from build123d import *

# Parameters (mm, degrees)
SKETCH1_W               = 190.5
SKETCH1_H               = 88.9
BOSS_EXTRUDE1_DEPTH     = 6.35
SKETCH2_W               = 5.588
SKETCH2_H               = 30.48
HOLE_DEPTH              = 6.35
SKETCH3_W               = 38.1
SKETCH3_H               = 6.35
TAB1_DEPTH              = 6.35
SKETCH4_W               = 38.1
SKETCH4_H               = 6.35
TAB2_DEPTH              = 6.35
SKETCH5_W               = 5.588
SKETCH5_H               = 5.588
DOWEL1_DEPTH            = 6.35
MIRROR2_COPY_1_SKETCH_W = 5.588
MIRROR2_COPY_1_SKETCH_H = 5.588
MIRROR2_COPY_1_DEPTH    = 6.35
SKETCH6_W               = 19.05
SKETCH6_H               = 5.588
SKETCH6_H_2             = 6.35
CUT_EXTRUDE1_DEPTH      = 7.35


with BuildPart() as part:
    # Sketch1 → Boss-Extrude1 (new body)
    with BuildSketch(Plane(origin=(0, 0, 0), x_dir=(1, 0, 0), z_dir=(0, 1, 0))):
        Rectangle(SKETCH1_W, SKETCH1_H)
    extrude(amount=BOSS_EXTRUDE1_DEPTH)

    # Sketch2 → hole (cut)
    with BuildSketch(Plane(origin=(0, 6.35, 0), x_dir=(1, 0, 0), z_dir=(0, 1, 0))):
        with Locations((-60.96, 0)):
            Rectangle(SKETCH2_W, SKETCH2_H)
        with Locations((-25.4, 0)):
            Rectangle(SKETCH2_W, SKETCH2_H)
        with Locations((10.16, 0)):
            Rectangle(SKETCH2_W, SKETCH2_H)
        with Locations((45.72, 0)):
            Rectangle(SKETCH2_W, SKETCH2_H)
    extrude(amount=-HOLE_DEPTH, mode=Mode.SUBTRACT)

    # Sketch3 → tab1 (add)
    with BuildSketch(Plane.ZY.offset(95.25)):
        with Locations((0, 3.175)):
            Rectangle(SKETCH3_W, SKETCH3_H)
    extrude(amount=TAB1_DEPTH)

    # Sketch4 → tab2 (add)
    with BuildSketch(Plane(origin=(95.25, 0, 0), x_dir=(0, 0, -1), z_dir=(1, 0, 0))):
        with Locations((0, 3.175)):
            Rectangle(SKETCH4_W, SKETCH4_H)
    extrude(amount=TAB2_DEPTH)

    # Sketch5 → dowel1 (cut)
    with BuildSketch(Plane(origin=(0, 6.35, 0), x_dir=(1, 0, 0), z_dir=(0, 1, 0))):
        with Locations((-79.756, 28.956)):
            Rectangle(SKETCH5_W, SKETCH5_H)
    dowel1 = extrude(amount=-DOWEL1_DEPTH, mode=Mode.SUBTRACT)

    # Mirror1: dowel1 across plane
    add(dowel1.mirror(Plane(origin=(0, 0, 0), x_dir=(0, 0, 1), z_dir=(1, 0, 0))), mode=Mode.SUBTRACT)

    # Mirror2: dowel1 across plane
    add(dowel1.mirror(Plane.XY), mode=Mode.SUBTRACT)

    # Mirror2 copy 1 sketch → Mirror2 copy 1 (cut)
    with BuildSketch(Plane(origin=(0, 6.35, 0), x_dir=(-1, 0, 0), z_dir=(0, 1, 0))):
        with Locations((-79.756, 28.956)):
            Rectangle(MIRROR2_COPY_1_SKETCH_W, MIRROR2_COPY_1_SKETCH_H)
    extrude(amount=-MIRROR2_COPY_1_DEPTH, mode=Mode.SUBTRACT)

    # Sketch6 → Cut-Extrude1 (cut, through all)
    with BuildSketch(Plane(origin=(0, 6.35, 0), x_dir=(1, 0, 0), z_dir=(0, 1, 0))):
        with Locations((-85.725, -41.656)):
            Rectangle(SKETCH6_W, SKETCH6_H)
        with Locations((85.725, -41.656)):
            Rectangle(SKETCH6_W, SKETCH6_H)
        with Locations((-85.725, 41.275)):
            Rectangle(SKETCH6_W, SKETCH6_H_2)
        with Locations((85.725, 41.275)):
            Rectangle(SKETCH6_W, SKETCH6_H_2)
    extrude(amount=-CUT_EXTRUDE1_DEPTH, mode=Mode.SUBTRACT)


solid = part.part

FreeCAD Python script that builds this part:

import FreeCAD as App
import Part
import Sketcher
Q = App.Units.Quantity


def add_polygon(sketch, points):
    """Adds a closed chain of lines whose ends are joined by coincident constraints."""
    first, n = sketch.GeometryCount, len(points)
    for a, b in zip(points, points[1:] + points[:1]):
        sketch.addGeometry(Part.LineSegment(App.Vector(*a, 0), App.Vector(*b, 0)), False)
    for i in range(n):
        sketch.addConstraint(Sketcher.Constraint("Coincident", first + i, 2, first + (i + 1) % n, 1))

doc = App.newDocument("Part")
body = doc.addObject("PartDesign::Body", "Body")

# Sketch on XZ plane
sketch1 = doc.addObject("Sketcher::SketchObject", "Sketch")
body.addObject(sketch1)
sketch1.AttachmentSupport = (doc.XZ_Plane, [""])
sketch1.MapMode = "FlatFace"
add_polygon(sketch1, [(-95, -44), (-95, 44), (95, 44), (95, -44)])  # lines 0-3
sketch1.addConstraint(Sketcher.Constraint("Vertical", 0))
sketch1.addConstraint(Sketcher.Constraint("Horizontal", 1))
sketch1.addConstraint(Sketcher.Constraint("Vertical", 2))
sketch1.addConstraint(Sketcher.Constraint("Horizontal", 3))
sketch1.addConstraint(Sketcher.Constraint("Symmetric", 0, 2, 2, 2, -1, 1))
sketch1.addConstraint(Sketcher.Constraint("DistanceX", 1, 1, 1, 2, Q("7.5 in")))
sketch1.addConstraint(Sketcher.Constraint("DistanceY", 0, 1, 0, 2, Q("3.5 in")))
pad1 = doc.addObject("PartDesign::Pad", "Pad")
body.addObject(pad1)
pad1.Profile = sketch1
pad1.Length = Q("0.25 in")
pad1.Reversed = True

# Sketch on XZ plane
sketch2 = doc.addObject("Sketcher::SketchObject", "Sketch001")
body.addObject(sketch2)
sketch2.AttachmentSupport = (doc.XZ_Plane, [""])
sketch2.MapMode = "FlatFace"
sketch2.AttachmentOffset = App.Placement(App.Vector(0, 0, -0.25 * 25.4), App.Rotation())
add_polygon(sketch2, [(-64, -15), (-64, 15), (-58, 15), (-58, -15)])  # lines 0-3
add_polygon(sketch2, [(-28, -15), (-28, 15), (-23, 15), (-23, -15)])  # lines 4-7
add_polygon(sketch2, [(7, -15), (7, 15), (13, 15), (13, -15)])  # lines 8-11
add_polygon(sketch2, [(43, -15), (43, 15), (49, 15), (49, -15)])  # lines 12-15
sketch2.addConstraint(Sketcher.Constraint("Vertical", 0))
sketch2.addConstraint(Sketcher.Constraint("Horizontal", 1))
sketch2.addConstraint(Sketcher.Constraint("Vertical", 2))
sketch2.addConstraint(Sketcher.Constraint("Horizontal", 3))
sketch2.addConstraint(Sketcher.Constraint("Vertical", 4))
sketch2.addConstraint(Sketcher.Constraint("Horizontal", 5))
sketch2.addConstraint(Sketcher.Constraint("Vertical", 6))
sketch2.addConstraint(Sketcher.Constraint("Horizontal", 7))
sketch2.addConstraint(Sketcher.Constraint("Vertical", 8))
sketch2.addConstraint(Sketcher.Constraint("Horizontal", 9))
sketch2.addConstraint(Sketcher.Constraint("Vertical", 10))
sketch2.addConstraint(Sketcher.Constraint("Horizontal", 11))
sketch2.addConstraint(Sketcher.Constraint("Vertical", 12))
sketch2.addConstraint(Sketcher.Constraint("Horizontal", 13))
sketch2.addConstraint(Sketcher.Constraint("Vertical", 14))
sketch2.addConstraint(Sketcher.Constraint("Horizontal", 15))
sketch2.addConstraint(Sketcher.Constraint("Horizontal", 1, 2, 4, 2))
sketch2.addConstraint(Sketcher.Constraint("Horizontal", 3, 2, 6, 2))
sketch2.addConstraint(Sketcher.Constraint("Horizontal", 5, 2, 8, 2))
sketch2.addConstraint(Sketcher.Constraint("Horizontal", 7, 2, 10, 2))
sketch2.addConstraint(Sketcher.Constraint("Horizontal", 9, 2, 12, 2))
sketch2.addConstraint(Sketcher.Constraint("Horizontal", 11, 2, 14, 2))
sketch2.addConstraint(Sketcher.Constraint("Equal", 3, 5))
sketch2.addConstraint(Sketcher.Constraint("Equal", 7, 9))
sketch2.addConstraint(Sketcher.Constraint("Equal", 11, 13))
sketch2.addConstraint(Sketcher.Constraint("DistanceY", 0, 1, 0, 2, Q("1.2 in")))
sketch2.addConstraint(Sketcher.Constraint("DistanceX", 1, 1, 1, 2, Q("0.22 in")))
sketch2.addConstraint(Sketcher.Constraint("DistanceY", -1, 1, 0, 2, Q("0.6 in")))
sketch2.addConstraint(Sketcher.Constraint("DistanceX", 0, 2, 4, 2, Q("1.4 in")))
sketch2.addConstraint(Sketcher.Constraint("DistanceX", 4, 2, 8, 2, Q("1.4 in")))
sketch2.addConstraint(Sketcher.Constraint("DistanceX", 8, 2, 12, 2, Q("1.4 in")))
sketch2.addConstraint(Sketcher.Constraint("DistanceX", 0, 2, -1, 1, Q("2.51 in")))
pocket1 = doc.addObject("PartDesign::Pocket", "Pocket")
body.addObject(pocket1)
pocket1.Profile = sketch2
pocket1.Length = Q("0.25 in")
pocket1.Reversed = True

# Sketch on YZ plane
sketch3 = doc.addObject("Sketcher::SketchObject", "Sketch002")
body.addObject(sketch3)
sketch3.AttachmentSupport = (doc.YZ_Plane, [""])
sketch3.MapMode = "FlatFace"
sketch3.AttachmentOffset = App.Placement(App.Vector(0, 0, -3.75 * 25.4), App.Rotation())
add_polygon(sketch3, [(6, -19), (0, -19), (0, 19), (6, 19)])  # lines 0-3
sketch3.addConstraint(Sketcher.Constraint("Horizontal", 0))
sketch3.addConstraint(Sketcher.Constraint("Vertical", 1))
sketch3.addConstraint(Sketcher.Constraint("Horizontal", 2))
sketch3.addConstraint(Sketcher.Constraint("Vertical", 3))
sketch3.addConstraint(Sketcher.Constraint("Symmetric", 0, 2, 1, 2, -1, 1))
sketch3.addConstraint(Sketcher.Constraint("DistanceY", 1, 1, 1, 2, Q("1.5 in")))
sketch3.addConstraint(Sketcher.Constraint("DistanceX", 0, 2, 0, 1, Q("0.25 in")))
pad2 = doc.addObject("PartDesign::Pad", "Pad001")
body.addObject(pad2)
pad2.Profile = sketch3
pad2.Length = Q("0.25 in")
pad2.Reversed = True

# Sketch on YZ plane
sketch4 = doc.addObject("Sketcher::SketchObject", "Sketch003")
body.addObject(sketch4)
sketch4.AttachmentSupport = (doc.YZ_Plane, [""])
sketch4.MapMode = "FlatFace"
sketch4.AttachmentOffset = App.Placement(App.Vector(0, 0, 3.75 * 25.4), App.Rotation())
add_polygon(sketch4, [(6, 19), (0, 19), (0, -19), (6, -19)])  # lines 0-3
sketch4.addConstraint(Sketcher.Constraint("Horizontal", 0))
sketch4.addConstraint(Sketcher.Constraint("Vertical", 1))
sketch4.addConstraint(Sketcher.Constraint("Horizontal", 2))
sketch4.addConstraint(Sketcher.Constraint("Vertical", 3))
sketch4.addConstraint(Sketcher.Constraint("Symmetric", 0, 2, 1, 2, -1, 1))
sketch4.addConstraint(Sketcher.Constraint("DistanceY", 1, 2, 1, 1, Q("1.5 in")))
sketch4.addConstraint(Sketcher.Constraint("DistanceX", 0, 2, 0, 1, Q("0.25 in")))
pad3 = doc.addObject("PartDesign::Pad", "Pad002")
body.addObject(pad3)
pad3.Profile = sketch4
pad3.Length = Q("0.25 in")

# Sketch on XZ plane
sketch5 = doc.addObject("Sketcher::SketchObject", "Sketch004")
body.addObject(sketch5)
sketch5.AttachmentSupport = (doc.XZ_Plane, [""])
sketch5.MapMode = "FlatFace"
sketch5.AttachmentOffset = App.Placement(App.Vector(0, 0, -0.25 * 25.4), App.Rotation())
add_polygon(sketch5, [(-83, -32), (-83, -26), (-77, -26), (-77, -32)])  # lines 0-3
sketch5.addConstraint(Sketcher.Constraint("Vertical", 0))
sketch5.addConstraint(Sketcher.Constraint("Horizontal", 1))
sketch5.addConstraint(Sketcher.Constraint("Vertical", 2))
sketch5.addConstraint(Sketcher.Constraint("Horizontal", 3))
sketch5.addConstraint(Sketcher.Constraint("Equal", 3, 0))
sketch5.addConstraint(Sketcher.Constraint("DistanceX", 1, 1, 1, 2, Q("0.22 in")))
sketch5.addConstraint(Sketcher.Constraint("DistanceX", 0, 2, -1, 1, Q("3.25 in")))
sketch5.addConstraint(Sketcher.Constraint("DistanceY", 0, 2, -1, 1, Q("1.03 in")))
pocket2 = doc.addObject("PartDesign::Pocket", "Pocket001")
body.addObject(pocket2)
pocket2.Profile = sketch5
pocket2.Length = Q("0.25 in")
pocket2.Reversed = True
doc.recompute()

mirrored = doc.addObject("PartDesign::Mirrored", "Mirrored")
body.addObject(mirrored)
mirrored.Originals = [pocket2]
mirrored.MirrorPlane = (doc.YZ_Plane, [""])
body.Tip = mirrored
doc.recompute()

mirrored2 = doc.addObject("PartDesign::Mirrored", "Mirrored001")
body.addObject(mirrored2)
mirrored2.Originals = [pocket2]
mirrored2.MirrorPlane = (doc.XY_Plane, [""])
body.Tip = mirrored2

# Sketch on XZ plane
sketch6 = doc.addObject("Sketcher::SketchObject", "Sketch005")
body.addObject(sketch6)
sketch6.AttachmentSupport = (doc.XZ_Plane, [""])
sketch6.MapMode = "FlatFace"
sketch6.AttachmentOffset = App.Placement(App.Vector(0, 0, -0.25 * 25.4), App.Rotation())
add_polygon(sketch6, [(83, 32), (83, 26), (77, 26), (77, 32)])  # lines 0-3
sketch6.addConstraint(Sketcher.Constraint("Vertical", 0))
sketch6.addConstraint(Sketcher.Constraint("Horizontal", 1))
sketch6.addConstraint(Sketcher.Constraint("Vertical", 2))
sketch6.addConstraint(Sketcher.Constraint("Horizontal", 3))
sketch6.addConstraint(Sketcher.Constraint("Equal", 3, 0))
sketch6.addConstraint(Sketcher.Constraint("DistanceX", 1, 2, 1, 1, Q("0.22 in")))
sketch6.addConstraint(Sketcher.Constraint("DistanceX", -1, 1, 0, 2, Q("3.25 in")))
sketch6.addConstraint(Sketcher.Constraint("DistanceY", -1, 1, 0, 2, Q("1.03 in")))
pocket3 = doc.addObject("PartDesign::Pocket", "Pocket002")
body.addObject(pocket3)
pocket3.Profile = sketch6
pocket3.Length = Q("0.25 in")
pocket3.Reversed = True

# Sketch on XZ plane
sketch7 = doc.addObject("Sketcher::SketchObject", "Sketch006")
body.addObject(sketch7)
sketch7.AttachmentSupport = (doc.XZ_Plane, [""])
sketch7.MapMode = "FlatFace"
sketch7.AttachmentOffset = App.Placement(App.Vector(0, 0, -0.25 * 25.4), App.Rotation())
add_polygon(sketch7, [(-95, 39), (-95, 44), (-76, 44), (-76, 39)])  # lines 0-3
add_polygon(sketch7, [(76, 39), (76, 44), (95, 44), (95, 39)])  # lines 4-7
add_polygon(sketch7, [(-95, -44), (-95, -38), (-76, -38), (-76, -44)])  # lines 8-11
add_polygon(sketch7, [(76, -44), (76, -38), (95, -38), (95, -44)])  # lines 12-15
sketch7.addConstraint(Sketcher.Constraint("Vertical", 0))
sketch7.addConstraint(Sketcher.Constraint("Horizontal", 1))
sketch7.addConstraint(Sketcher.Constraint("Vertical", 2))
sketch7.addConstraint(Sketcher.Constraint("Horizontal", 3))
sketch7.addConstraint(Sketcher.Constraint("Vertical", 4))
sketch7.addConstraint(Sketcher.Constraint("Horizontal", 5))
sketch7.addConstraint(Sketcher.Constraint("Vertical", 6))
sketch7.addConstraint(Sketcher.Constraint("Horizontal", 7))
sketch7.addConstraint(Sketcher.Constraint("Vertical", 8))
sketch7.addConstraint(Sketcher.Constraint("Horizontal", 9))
sketch7.addConstraint(Sketcher.Constraint("Vertical", 10))
sketch7.addConstraint(Sketcher.Constraint("Horizontal", 11))
sketch7.addConstraint(Sketcher.Constraint("Vertical", 12))
sketch7.addConstraint(Sketcher.Constraint("Horizontal", 13))
sketch7.addConstraint(Sketcher.Constraint("Vertical", 14))
sketch7.addConstraint(Sketcher.Constraint("Horizontal", 15))
sketch7.addConstraint(Sketcher.Constraint("Symmetric", 4, 2, 10, 2, -1, 1))
sketch7.addConstraint(Sketcher.Constraint("Symmetric", 0, 2, 14, 2, -1, 1))
sketch7.addConstraint(Sketcher.Constraint("Symmetric", 1, 2, 4, 2, -2))
sketch7.addConstraint(Sketcher.Constraint("Symmetric", 3, 2, 6, 2, -2))
sketch7.addConstraint(Sketcher.Constraint("Symmetric", 9, 2, 12, 2, -2))
sketch7.addConstraint(Sketcher.Constraint("Vertical", 3, 2, 8, 2))
sketch7.addConstraint(Sketcher.Constraint("DistanceX", 1, 2, -1, 1, Q("3 in")))
sketch7.addConstraint(Sketcher.Constraint("DistanceX", 1, 1, 1, 2, Q("0.75 in")))
sketch7.addConstraint(Sketcher.Constraint("DistanceY", 0, 1, 0, 2, Q("0.22 in")))
sketch7.addConstraint(Sketcher.Constraint("DistanceY", 8, 1, 8, 2, Q("0.25 in")))
sketch7.addConstraint(Sketcher.Constraint("DistanceY", 8, 2, -1, 1, Q("1.5 in")))
pocket4 = doc.addObject("PartDesign::Pocket", "Pocket003")
body.addObject(pocket4)
pocket4.Profile = sketch7
pocket4.Type = "ThroughAll"
pocket4.Reversed = True

doc.recompute()
